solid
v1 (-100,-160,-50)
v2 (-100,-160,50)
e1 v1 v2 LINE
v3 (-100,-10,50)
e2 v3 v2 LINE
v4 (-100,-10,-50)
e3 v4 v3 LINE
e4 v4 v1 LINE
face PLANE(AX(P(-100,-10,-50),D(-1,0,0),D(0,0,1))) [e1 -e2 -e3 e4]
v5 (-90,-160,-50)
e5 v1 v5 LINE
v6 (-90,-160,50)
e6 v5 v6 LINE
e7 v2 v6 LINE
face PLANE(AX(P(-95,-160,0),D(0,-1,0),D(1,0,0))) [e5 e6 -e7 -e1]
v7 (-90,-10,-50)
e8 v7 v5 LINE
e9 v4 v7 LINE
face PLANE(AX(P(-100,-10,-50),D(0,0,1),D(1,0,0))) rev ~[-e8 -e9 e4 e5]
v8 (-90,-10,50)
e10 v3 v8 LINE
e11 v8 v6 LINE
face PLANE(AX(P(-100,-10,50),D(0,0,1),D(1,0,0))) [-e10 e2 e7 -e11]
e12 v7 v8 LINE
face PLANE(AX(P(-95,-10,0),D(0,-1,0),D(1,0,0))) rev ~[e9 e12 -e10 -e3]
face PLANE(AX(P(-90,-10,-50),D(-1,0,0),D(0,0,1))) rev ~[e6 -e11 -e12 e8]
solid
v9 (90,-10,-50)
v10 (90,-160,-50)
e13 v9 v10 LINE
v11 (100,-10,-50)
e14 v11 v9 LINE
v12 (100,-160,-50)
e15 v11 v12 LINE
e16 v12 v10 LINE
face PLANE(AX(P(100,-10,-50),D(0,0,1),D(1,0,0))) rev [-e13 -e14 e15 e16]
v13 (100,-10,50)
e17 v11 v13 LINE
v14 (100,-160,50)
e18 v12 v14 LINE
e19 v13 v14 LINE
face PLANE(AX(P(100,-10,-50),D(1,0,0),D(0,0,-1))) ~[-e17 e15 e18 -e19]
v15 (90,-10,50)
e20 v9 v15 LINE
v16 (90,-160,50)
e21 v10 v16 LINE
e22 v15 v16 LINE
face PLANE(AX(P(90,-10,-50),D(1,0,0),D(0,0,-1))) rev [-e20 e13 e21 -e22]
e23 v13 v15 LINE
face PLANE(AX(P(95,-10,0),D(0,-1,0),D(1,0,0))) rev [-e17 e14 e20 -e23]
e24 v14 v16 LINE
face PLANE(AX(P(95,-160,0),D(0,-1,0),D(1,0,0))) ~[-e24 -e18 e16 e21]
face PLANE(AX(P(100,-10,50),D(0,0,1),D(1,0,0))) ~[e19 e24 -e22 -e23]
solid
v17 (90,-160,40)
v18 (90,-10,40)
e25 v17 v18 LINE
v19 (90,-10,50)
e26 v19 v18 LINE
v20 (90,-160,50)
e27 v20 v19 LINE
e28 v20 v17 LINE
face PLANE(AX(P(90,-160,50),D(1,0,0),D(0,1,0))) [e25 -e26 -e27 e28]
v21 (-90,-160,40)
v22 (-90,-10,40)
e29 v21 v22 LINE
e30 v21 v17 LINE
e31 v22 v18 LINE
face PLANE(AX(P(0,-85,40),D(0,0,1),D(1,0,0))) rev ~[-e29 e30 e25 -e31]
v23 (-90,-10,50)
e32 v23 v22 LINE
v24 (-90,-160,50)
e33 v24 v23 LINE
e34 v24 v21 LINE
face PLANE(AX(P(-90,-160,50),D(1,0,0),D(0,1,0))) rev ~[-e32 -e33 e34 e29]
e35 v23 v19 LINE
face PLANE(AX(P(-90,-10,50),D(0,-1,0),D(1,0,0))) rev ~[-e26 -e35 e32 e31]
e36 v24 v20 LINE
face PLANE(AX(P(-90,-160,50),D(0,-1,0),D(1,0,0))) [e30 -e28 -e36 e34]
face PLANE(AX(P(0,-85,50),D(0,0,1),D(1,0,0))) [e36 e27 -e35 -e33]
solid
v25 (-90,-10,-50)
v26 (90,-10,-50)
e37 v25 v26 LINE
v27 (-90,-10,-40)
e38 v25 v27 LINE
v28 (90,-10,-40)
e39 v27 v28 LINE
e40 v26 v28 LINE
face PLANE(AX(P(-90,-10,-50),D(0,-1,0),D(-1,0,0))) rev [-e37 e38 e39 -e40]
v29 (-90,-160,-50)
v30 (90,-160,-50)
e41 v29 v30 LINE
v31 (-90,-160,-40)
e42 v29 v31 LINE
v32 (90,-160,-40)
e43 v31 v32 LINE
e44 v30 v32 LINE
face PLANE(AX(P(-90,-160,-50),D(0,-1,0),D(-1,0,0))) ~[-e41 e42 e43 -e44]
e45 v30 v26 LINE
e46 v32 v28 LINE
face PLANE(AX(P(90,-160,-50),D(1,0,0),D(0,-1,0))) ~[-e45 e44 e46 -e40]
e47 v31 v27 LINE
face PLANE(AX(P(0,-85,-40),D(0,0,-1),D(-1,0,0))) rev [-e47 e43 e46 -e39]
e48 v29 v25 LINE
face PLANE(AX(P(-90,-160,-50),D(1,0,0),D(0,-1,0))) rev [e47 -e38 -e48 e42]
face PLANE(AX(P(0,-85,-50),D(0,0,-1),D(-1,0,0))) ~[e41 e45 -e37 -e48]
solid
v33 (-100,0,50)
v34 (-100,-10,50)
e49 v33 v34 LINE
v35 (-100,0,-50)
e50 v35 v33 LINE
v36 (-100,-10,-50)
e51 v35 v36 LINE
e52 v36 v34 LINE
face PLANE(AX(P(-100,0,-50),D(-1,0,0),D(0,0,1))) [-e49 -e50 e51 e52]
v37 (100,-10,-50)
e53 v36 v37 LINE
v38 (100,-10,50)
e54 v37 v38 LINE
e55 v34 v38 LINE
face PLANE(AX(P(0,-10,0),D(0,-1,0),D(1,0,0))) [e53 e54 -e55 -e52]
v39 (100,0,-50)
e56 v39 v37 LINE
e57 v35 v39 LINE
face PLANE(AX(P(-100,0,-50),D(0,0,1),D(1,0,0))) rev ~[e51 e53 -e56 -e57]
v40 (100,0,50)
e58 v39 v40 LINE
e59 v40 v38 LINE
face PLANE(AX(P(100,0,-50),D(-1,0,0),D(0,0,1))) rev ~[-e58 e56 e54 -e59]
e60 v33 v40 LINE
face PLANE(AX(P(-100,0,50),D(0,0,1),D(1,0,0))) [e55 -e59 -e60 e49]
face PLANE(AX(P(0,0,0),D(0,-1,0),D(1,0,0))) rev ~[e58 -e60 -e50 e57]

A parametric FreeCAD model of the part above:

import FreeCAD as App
import Part
import Sketcher

V = App.Vector
Q = App.Units.Quantity


def add_polygon(sketch, points):
    """Adds a closed chain of lines whose ends are joined by coincident constraints."""
    first, n = sketch.GeometryCount, len(points)
    for a, b in zip(points, points[1:] + points[:1]):
        sketch.addGeometry(Part.LineSegment(App.Vector(*a, 0), App.Vector(*b, 0)), False)
    for i in range(n):
        sketch.addConstraint(Sketcher.Constraint("Coincident", first + i, 2, first + (i + 1) % n, 1))

doc = App.newDocument("Part")
body = doc.addObject("PartDesign::Body", "Body")

sketch1 = body.newObject("Sketcher::SketchObject", "Sketch")
sketch1.AttachmentSupport = (doc.getObject("XZ_Plane"), [""])
sketch1.MapMode = "FlatFace"
add_polygon(sketch1, [(-100, 50), (-100, -50), (100, -50), (100, 50)])
sketch1.addConstraint(Sketcher.Constraint("Vertical", 0))
sketch1.addConstraint(Sketcher.Constraint("Horizontal", 1))
sketch1.addConstraint(Sketcher.Constraint("Vertical", 2))
sketch1.addConstraint(Sketcher.Constraint("Horizontal", 3))
sketch1.addConstraint(Sketcher.Constraint("Symmetric", 0, 2, 2, 2, -1, 1))
sketch1.addConstraint(Sketcher.Constraint("DistanceX", 1, 1, 1, 2, Q("200 mm")))
sketch1.addConstraint(Sketcher.Constraint("DistanceY", 0, 2, 0, 1, Q("100 mm")))
pad1 = body.newObject("PartDesign::Pad", "Pad")
pad1.Profile = sketch1
pad1.Length = 10
body2 = doc.addObject("PartDesign::Body", "Body001")

sketch2 = body2.newObject("Sketcher::SketchObject", "Sketch001")
sketch2.AttachmentSupport = (doc.getObject("XZ_Plane001"), [""])
sketch2.MapMode = "FlatFace"
sketch2.AttachmentOffset = App.Placement(V(0, 0, 10), App.Rotation())
add_polygon(sketch2, [(-100, 50), (-100, -50), (-90, -50), (-90, 50)])
sketch2.addConstraint(Sketcher.Constraint("Vertical", 0))
sketch2.addConstraint(Sketcher.Constraint("Horizontal", 1))
sketch2.addConstraint(Sketcher.Constraint("Vertical", 2))
sketch2.addConstraint(Sketcher.Constraint("Horizontal", 3))
sketch2.addConstraint(Sketcher.Constraint("DistanceX", 1, 1, 1, 2, Q("10 mm")))
sketch2.addConstraint(Sketcher.Constraint("DistanceY", 0, 2, 0, 1, Q("100 mm")))
sketch2.addConstraint(Sketcher.Constraint("DistanceX", 0, 2, -1, 1, Q("100 mm")))
sketch2.addConstraint(Sketcher.Constraint("DistanceY", 0, 2, -1, 1, Q("50 mm")))
pad2 = body2.newObject("PartDesign::Pad", "Pad001")
pad2.Profile = sketch2
pad2.Length = 150
body3 = doc.addObject("PartDesign::Body", "Body002")
doc.recompute()

mirroring = doc.addObject("Part::Mirroring", "Mirroring")
mirroring.Source = body2
mirroring.Base = V(0, 0, 0)
mirroring.Normal = V(1, 0, 0)
body3.BaseFeature = mirroring
doc.recompute()
body4 = doc.addObject("PartDesign::Body", "Body003")

sketch3 = body4.newObject("Sketcher::SketchObject", "Sketch002")
sketch3.AttachmentSupport = (doc.getObject("XY_Plane003"), [""])
sketch3.MapMode = "FlatFace"
sketch3.AttachmentOffset = App.Placement(V(0, 0, 50), App.Rotation())
add_polygon(sketch3, [(-90, -10), (-90, -160), (90, -160), (90, -10)])
sketch3.addConstraint(Sketcher.Constraint("Vertical", 0))
sketch3.addConstraint(Sketcher.Constraint("Horizontal", 1))
sketch3.addConstraint(Sketcher.Constraint("Vertical", 2))
sketch3.addConstraint(Sketcher.Constraint("Horizontal", 3))
sketch3.addConstraint(Sketcher.Constraint("DistanceX", 1, 1, 1, 2, Q("180 mm")))
sketch3.addConstraint(Sketcher.Constraint("DistanceY", 0, 2, 0, 1, Q("150 mm")))
sketch3.addConstraint(Sketcher.Constraint("DistanceX", 0, 2, -1, 1, Q("90 mm")))
sketch3.addConstraint(Sketcher.Constraint("DistanceY", 0, 2, -1, 1, Q("160 mm")))
pad3 = body4.newObject("PartDesign::Pad", "Pad002")
pad3.Profile = sketch3
pad3.Length = 10
pad3.Reversed = True
body5 = doc.addObject("PartDesign::Body", "Body004")
doc.recompute()

mirroring2 = doc.addObject("Part::Mirroring", "Mirroring001")
mirroring2.Source = body4
mirroring2.Base = V(0, 0, 0)
mirroring2.Normal = V(0, 0, 1)
body5.BaseFeature = mirroring2
doc.recompute()
mirroring.Visibility = False
mirroring2.Visibility = False

doc.recompute()
